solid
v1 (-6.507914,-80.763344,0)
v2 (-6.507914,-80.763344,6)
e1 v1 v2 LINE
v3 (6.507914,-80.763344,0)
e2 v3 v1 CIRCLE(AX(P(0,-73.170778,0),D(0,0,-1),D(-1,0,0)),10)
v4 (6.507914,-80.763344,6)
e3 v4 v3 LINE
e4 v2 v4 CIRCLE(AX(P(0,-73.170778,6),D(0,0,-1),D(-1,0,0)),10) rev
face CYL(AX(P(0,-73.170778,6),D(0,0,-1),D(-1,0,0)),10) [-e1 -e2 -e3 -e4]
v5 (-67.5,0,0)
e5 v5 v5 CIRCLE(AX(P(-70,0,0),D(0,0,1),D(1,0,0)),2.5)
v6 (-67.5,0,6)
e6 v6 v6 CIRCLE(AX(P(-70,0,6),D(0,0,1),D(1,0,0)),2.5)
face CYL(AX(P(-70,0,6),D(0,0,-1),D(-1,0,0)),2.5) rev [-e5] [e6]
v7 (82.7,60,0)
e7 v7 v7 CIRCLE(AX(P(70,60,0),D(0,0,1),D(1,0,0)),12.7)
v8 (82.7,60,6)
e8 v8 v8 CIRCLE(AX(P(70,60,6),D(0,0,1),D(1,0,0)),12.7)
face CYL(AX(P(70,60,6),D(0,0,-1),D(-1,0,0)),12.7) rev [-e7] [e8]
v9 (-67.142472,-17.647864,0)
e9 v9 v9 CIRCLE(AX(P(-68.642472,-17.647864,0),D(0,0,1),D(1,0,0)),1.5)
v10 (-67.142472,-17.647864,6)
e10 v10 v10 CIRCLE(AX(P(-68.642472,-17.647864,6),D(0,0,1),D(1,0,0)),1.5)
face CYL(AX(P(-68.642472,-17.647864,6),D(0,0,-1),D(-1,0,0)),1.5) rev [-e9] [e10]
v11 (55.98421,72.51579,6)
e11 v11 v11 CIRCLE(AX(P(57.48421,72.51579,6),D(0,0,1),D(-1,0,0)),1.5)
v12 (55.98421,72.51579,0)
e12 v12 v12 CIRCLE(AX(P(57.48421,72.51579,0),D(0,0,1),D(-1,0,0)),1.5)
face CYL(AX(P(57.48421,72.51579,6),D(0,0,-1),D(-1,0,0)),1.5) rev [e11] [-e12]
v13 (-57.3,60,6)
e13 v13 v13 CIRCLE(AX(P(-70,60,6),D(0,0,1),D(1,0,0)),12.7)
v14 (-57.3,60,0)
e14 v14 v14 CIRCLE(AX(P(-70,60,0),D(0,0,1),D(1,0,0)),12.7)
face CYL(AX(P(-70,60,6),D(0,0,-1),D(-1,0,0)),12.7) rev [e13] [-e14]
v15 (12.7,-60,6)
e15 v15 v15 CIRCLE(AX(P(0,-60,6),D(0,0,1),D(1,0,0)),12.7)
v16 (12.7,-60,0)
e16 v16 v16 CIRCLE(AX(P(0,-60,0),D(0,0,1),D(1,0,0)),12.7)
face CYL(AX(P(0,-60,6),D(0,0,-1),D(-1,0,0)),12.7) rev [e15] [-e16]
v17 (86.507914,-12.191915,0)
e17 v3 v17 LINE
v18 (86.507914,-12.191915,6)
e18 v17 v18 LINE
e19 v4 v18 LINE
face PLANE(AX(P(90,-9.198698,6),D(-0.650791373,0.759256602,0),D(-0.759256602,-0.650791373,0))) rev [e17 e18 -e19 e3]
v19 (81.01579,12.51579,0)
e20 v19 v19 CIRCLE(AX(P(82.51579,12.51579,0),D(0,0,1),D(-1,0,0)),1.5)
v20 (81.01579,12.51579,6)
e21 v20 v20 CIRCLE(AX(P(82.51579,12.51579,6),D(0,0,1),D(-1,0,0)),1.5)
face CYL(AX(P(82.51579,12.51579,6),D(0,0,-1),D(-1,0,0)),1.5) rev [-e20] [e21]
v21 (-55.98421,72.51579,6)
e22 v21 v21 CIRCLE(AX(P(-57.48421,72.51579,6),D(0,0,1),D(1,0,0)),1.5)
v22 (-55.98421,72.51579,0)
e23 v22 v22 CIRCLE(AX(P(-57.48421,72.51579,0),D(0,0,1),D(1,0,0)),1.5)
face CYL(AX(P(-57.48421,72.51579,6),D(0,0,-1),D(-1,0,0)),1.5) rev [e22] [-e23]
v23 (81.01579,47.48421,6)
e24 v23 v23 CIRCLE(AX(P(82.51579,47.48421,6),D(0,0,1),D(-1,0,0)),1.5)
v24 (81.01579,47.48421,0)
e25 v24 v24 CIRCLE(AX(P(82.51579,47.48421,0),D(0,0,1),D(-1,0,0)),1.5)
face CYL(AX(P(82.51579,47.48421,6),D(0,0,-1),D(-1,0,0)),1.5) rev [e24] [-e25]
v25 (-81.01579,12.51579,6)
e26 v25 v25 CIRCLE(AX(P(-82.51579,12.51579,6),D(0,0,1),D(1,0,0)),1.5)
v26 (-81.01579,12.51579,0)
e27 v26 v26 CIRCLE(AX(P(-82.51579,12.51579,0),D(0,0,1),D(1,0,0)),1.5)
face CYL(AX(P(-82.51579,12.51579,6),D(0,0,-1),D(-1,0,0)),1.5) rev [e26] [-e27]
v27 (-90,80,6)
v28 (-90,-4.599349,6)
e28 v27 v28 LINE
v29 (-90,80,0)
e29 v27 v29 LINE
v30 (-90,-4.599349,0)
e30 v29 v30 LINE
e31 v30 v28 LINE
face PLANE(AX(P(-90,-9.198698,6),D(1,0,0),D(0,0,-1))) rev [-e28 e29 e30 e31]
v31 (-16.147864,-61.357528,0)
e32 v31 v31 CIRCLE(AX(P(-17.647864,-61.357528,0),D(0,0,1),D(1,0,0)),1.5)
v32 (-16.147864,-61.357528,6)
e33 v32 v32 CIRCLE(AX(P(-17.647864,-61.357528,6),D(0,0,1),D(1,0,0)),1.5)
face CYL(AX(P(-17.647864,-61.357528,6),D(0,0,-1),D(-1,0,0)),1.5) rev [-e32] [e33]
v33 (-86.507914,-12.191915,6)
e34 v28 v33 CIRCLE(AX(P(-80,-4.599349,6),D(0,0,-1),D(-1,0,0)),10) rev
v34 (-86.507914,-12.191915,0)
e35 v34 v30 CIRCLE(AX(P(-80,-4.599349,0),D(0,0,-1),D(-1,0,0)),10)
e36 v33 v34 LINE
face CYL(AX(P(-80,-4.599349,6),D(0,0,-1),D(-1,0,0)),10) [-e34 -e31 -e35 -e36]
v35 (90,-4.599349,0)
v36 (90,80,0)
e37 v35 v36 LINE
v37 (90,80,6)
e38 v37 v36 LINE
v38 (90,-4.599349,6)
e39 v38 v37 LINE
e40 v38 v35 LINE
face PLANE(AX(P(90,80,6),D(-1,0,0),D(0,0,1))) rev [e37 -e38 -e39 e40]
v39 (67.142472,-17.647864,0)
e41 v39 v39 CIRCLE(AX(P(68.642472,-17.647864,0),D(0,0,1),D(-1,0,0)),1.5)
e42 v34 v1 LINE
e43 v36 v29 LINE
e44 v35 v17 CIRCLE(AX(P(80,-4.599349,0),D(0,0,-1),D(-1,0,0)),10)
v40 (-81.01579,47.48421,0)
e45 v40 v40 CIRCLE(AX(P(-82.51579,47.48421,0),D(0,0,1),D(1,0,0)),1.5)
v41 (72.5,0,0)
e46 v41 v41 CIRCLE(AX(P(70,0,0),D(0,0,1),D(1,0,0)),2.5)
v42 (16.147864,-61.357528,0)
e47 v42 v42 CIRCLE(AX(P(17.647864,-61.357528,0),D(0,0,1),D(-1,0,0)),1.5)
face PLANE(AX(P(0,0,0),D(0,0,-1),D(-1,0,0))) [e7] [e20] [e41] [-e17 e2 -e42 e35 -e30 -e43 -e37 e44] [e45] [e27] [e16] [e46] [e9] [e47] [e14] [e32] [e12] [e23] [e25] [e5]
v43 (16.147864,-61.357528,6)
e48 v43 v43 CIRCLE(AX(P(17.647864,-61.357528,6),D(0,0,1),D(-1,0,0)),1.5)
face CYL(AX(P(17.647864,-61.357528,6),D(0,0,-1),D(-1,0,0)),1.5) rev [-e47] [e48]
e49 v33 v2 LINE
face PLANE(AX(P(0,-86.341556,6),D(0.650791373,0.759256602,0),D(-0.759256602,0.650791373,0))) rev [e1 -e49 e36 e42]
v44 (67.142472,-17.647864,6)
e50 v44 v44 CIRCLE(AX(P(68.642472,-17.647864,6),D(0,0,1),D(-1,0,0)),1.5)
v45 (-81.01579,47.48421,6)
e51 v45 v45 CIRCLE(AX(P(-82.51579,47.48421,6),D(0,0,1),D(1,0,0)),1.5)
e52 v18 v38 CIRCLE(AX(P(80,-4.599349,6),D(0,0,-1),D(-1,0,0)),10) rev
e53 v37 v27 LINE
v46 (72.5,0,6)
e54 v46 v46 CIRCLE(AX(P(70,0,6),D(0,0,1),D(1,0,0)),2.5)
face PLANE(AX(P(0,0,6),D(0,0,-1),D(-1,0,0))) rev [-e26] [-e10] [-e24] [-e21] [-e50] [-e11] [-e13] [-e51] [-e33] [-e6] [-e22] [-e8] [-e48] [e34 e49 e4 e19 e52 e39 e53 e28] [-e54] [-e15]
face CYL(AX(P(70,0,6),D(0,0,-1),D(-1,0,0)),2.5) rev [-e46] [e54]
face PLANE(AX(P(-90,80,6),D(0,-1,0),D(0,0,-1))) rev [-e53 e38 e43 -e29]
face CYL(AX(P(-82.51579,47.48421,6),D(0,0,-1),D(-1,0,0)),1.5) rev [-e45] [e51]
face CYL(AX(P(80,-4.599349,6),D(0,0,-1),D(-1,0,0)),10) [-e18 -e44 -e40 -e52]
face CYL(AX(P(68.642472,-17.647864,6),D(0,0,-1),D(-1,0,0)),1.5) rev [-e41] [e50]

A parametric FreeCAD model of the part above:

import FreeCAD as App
import Part
import Sketcher
from FreeCAD import Vector


def edges_at(feature, points):
    """Names of the edges that pass closest to the given points."""
    edges = feature.Shape.Edges
    near = lambda p: min(range(len(edges)), key=lambda i: edges[i].distToShape(Part.Vertex(*p))[0])
    return sorted({f"Edge{near(p) + 1}" for p in points})


def add_polygon(sketch, points):
    """Adds a closed chain of lines whose ends are joined by coincident constraints."""
    first, n = sketch.GeometryCount, len(points)
    for a, b in zip(points, points[1:] + points[:1]):
        sketch.addGeometry(Part.LineSegment(App.Vector(*a, 0), App.Vector(*b, 0)), False)
    for i in range(n):
        sketch.addConstraint(Sketcher.Constraint("Coincident", first + i, 2, first + (i + 1) % n, 1))

doc = App.newDocument("Part")
body = doc.addObject("PartDesign::Body", "Body")

# Sketch on XY plane
sketch1 = body.newObject("Sketcher::SketchObject", "Sketch")
sketch1.AttachmentSupport = (doc.getObject("XY_Plane"), [""])
sketch1.MapMode = "FlatFace"
add_polygon(sketch1, [(90, 80), (-90, 80), (-90, -9.2), (0, -86.3), (90, -9.2)])  # lines 0-4
sketch1.addGeometry(Part.Circle(Vector(17.6, -61.4, 0), Vector(0, 0, 1), 1.5), False)  # 5
sketch1.addGeometry(Part.Circle(Vector(68.6, -17.6, 0), Vector(0, 0, 1), 1.5), False)  # 6
sketch1.addGeometry(Part.Circle(Vector(70, 0, 0), Vector(0, 0, 1), 2.5), False)  # 7
sketch1.addGeometry(Part.Circle(Vector(0, -60, 0), Vector(0, 0, 1), 12.7), False)  # 8
sketch1.addGeometry(Part.Circle(Vector(-17.6, -61.4, 0), Vector(0, 0, 1), 1.5), False)  # 9
sketch1.addGeometry(Part.Circle(Vector(-68.6, -17.6, 0), Vector(0, 0, 1), 1.5), False)  # 10
sketch1.addGeometry(Part.Circle(Vector(-70, 0, 0), Vector(0, 0, 1), 2.5), False)  # 11
sketch1.addGeometry(Part.Circle(Vector(82.5, 12.5, 0), Vector(0, 0, 1), 1.5), False)  # 12
sketch1.addGeometry(Part.Circle(Vector(82.5, 47.5, 0), Vector(0, 0, 1), 1.5), False)  # 13
sketch1.addGeometry(Part.Circle(Vector(70, 60, 0), Vector(0, 0, 1), 12.7), False)  # 14
sketch1.addGeometry(Part.Circle(Vector(57.5, 72.5, 0), Vector(0, 0, 1), 1.5), False)  # 15
sketch1.addGeometry(Part.Circle(Vector(-82.5, 12.5, 0), Vector(0, 0, 1), 1.5), False)  # 16
sketch1.addGeometry(Part.Circle(Vector(-82.5, 47.5, 0), Vector(0, 0, 1), 1.5), False)  # 17
sketch1.addGeometry(Part.Circle(Vector(-57.5, 72.5, 0), Vector(0, 0, 1), 1.5), False)  # 18
sketch1.addGeometry(Part.Circle(Vector(-70, 60, 0), Vector(0, 0, 1), 12.7), False)  # 19
sketch1.addConstraint(Sketcher.Constraint("Horizontal", 0))
sketch1.addConstraint(Sketcher.Constraint("Vertical", 1))
sketch1.addConstraint(Sketcher.Constraint("Vertical", 4))
sketch1.addConstraint(Sketcher.Constraint("Equal", 5, 6))
sketch1.addConstraint(Sketcher.Constraint("Equal", 6, 9))
sketch1.addConstraint(Sketcher.Constraint("Equal", 9, 10))
sketch1.addConstraint(Sketcher.Constraint("Equal", 7, 11))
sketch1.addConstraint(Sketcher.Constraint("Equal", 10, 12))
sketch1.addConstraint(Sketcher.Constraint("Equal", 12, 13))
sketch1.addConstraint(Sketcher.Constraint("Equal", 8, 14))
sketch1.addConstraint(Sketcher.Constraint("Equal", 13, 15))
sketch1.addConstraint(Sketcher.Constraint("Equal", 15, 16))
sketch1.addConstraint(Sketcher.Constraint("Equal", 16, 17))
sketch1.addConstraint(Sketcher.Constraint("Equal", 17, 18))
sketch1.addConstraint(Sketcher.Constraint("Equal", 14, 19))
sketch1.addConstraint(Sketcher.Constraint("Symmetric", 7, 3, 11, 3, -1, 1))
sketch1.addConstraint(Sketcher.Constraint("Symmetric", 5, 3, 9, 3, -2))
sketch1.addConstraint(Sketcher.Constraint("Symmetric", 6, 3, 10, 3, -2))
sketch1.addConstraint(Sketcher.Constraint("Symmetric", 12, 3, 16, 3, -2))
sketch1.addConstraint(Sketcher.Constraint("Symmetric", 13, 3, 17, 3, -2))
sketch1.addConstraint(Sketcher.Constraint("Symmetric", 15, 3, 18, 3, -2))
sketch1.addConstraint(Sketcher.Constraint("Symmetric", 14, 3, 19, 3, -2))
sketch1.addConstraint(Sketcher.Constraint("Symmetric", 1, 2, 3, 2, -2))
sketch1.addConstraint(Sketcher.Constraint("PointOnObject", 7, 3, -1))
sketch1.addConstraint(Sketcher.Constraint("PointOnObject", 8, 3, -2))
sketch1.addConstraint(Sketcher.Constraint("PointOnObject", 2, 2, -2))
sketch1.addConstraint(Sketcher.Constraint("Vertical", 12, 3, 13, 3))
sketch1.addConstraint(Sketcher.Constraint("Vertical", 7, 3, 14, 3))
sketch1.addConstraint(Sketcher.Constraint("Diameter", 5, 3.0))
sketch1.addConstraint(Sketcher.Constraint("Diameter", 7, 5.0))
sketch1.addConstraint(Sketcher.Constraint("Diameter", 8, 25.4))
sketch1.addConstraint(Sketcher.Constraint("DistanceX", 0, 2, 0, 1, 180.0))
sketch1.addConstraint(Sketcher.Constraint("DistanceX", -1, 1, 7, 3, 70.0))
sketch1.addConstraint(Sketcher.Constraint("DistanceY", 8, 3, -1, 1, 60.0))
sketch1.addConstraint(Sketcher.Constraint("DistanceY", -1, 1, 14, 3, 60.0))
sketch1.addConstraint(Sketcher.Constraint("DistanceY", -1, 1, 0, 2, 80.0))
sketch1.addConstraint(Sketcher.Constraint("DistanceY", 12, 3, 15, 3, 60.0))
sketch1.addConstraint(Sketcher.Constraint("Distance", 2, 118.537))
sketch1.addConstraint(Sketcher.Constraint("DistanceY", 1, 2, 1, 1, 89.198698))
sketch1.addConstraint(Sketcher.Constraint("DistanceY", 5, 3, -1, 1, 61.357528))
sketch1.addConstraint(Sketcher.Constraint("DistanceX", -1, 1, 6, 3, 68.642472))
sketch1.addConstraint(Sketcher.Constraint("DistanceX", -1, 1, 12, 3, 82.51579))
sketch1.addConstraint(Sketcher.Constraint("DistanceY", -1, 1, 12, 3, 12.51579))
sketch1.addConstraint(Sketcher.Constraint("DistanceY", -1, 1, 13, 3, 47.48421))
sketch1.addConstraint(Sketcher.Constraint("DistanceX", -1, 1, 15, 3, 57.48421))
sketch1.addConstraint(Sketcher.Constraint("DistanceX", 9, 3, 5, 3, 35.295729))
sketch1.addConstraint(Sketcher.Constraint("DistanceY", 2, 2, 6, 3, 68.693691))
pad1 = body.newObject("PartDesign::Pad", "Pad")
pad1.Profile = sketch1
pad1.Length = 6
doc.recompute()

fillet = body.newObject("PartDesign::Fillet", "Fillet")
fillet.Base = (pad1, edges_at(pad1, [(90, -9.199, 3), (0, -86.342, 3), (-90, -9.199, 3)]))
fillet.Radius = 10

doc.recompute()
